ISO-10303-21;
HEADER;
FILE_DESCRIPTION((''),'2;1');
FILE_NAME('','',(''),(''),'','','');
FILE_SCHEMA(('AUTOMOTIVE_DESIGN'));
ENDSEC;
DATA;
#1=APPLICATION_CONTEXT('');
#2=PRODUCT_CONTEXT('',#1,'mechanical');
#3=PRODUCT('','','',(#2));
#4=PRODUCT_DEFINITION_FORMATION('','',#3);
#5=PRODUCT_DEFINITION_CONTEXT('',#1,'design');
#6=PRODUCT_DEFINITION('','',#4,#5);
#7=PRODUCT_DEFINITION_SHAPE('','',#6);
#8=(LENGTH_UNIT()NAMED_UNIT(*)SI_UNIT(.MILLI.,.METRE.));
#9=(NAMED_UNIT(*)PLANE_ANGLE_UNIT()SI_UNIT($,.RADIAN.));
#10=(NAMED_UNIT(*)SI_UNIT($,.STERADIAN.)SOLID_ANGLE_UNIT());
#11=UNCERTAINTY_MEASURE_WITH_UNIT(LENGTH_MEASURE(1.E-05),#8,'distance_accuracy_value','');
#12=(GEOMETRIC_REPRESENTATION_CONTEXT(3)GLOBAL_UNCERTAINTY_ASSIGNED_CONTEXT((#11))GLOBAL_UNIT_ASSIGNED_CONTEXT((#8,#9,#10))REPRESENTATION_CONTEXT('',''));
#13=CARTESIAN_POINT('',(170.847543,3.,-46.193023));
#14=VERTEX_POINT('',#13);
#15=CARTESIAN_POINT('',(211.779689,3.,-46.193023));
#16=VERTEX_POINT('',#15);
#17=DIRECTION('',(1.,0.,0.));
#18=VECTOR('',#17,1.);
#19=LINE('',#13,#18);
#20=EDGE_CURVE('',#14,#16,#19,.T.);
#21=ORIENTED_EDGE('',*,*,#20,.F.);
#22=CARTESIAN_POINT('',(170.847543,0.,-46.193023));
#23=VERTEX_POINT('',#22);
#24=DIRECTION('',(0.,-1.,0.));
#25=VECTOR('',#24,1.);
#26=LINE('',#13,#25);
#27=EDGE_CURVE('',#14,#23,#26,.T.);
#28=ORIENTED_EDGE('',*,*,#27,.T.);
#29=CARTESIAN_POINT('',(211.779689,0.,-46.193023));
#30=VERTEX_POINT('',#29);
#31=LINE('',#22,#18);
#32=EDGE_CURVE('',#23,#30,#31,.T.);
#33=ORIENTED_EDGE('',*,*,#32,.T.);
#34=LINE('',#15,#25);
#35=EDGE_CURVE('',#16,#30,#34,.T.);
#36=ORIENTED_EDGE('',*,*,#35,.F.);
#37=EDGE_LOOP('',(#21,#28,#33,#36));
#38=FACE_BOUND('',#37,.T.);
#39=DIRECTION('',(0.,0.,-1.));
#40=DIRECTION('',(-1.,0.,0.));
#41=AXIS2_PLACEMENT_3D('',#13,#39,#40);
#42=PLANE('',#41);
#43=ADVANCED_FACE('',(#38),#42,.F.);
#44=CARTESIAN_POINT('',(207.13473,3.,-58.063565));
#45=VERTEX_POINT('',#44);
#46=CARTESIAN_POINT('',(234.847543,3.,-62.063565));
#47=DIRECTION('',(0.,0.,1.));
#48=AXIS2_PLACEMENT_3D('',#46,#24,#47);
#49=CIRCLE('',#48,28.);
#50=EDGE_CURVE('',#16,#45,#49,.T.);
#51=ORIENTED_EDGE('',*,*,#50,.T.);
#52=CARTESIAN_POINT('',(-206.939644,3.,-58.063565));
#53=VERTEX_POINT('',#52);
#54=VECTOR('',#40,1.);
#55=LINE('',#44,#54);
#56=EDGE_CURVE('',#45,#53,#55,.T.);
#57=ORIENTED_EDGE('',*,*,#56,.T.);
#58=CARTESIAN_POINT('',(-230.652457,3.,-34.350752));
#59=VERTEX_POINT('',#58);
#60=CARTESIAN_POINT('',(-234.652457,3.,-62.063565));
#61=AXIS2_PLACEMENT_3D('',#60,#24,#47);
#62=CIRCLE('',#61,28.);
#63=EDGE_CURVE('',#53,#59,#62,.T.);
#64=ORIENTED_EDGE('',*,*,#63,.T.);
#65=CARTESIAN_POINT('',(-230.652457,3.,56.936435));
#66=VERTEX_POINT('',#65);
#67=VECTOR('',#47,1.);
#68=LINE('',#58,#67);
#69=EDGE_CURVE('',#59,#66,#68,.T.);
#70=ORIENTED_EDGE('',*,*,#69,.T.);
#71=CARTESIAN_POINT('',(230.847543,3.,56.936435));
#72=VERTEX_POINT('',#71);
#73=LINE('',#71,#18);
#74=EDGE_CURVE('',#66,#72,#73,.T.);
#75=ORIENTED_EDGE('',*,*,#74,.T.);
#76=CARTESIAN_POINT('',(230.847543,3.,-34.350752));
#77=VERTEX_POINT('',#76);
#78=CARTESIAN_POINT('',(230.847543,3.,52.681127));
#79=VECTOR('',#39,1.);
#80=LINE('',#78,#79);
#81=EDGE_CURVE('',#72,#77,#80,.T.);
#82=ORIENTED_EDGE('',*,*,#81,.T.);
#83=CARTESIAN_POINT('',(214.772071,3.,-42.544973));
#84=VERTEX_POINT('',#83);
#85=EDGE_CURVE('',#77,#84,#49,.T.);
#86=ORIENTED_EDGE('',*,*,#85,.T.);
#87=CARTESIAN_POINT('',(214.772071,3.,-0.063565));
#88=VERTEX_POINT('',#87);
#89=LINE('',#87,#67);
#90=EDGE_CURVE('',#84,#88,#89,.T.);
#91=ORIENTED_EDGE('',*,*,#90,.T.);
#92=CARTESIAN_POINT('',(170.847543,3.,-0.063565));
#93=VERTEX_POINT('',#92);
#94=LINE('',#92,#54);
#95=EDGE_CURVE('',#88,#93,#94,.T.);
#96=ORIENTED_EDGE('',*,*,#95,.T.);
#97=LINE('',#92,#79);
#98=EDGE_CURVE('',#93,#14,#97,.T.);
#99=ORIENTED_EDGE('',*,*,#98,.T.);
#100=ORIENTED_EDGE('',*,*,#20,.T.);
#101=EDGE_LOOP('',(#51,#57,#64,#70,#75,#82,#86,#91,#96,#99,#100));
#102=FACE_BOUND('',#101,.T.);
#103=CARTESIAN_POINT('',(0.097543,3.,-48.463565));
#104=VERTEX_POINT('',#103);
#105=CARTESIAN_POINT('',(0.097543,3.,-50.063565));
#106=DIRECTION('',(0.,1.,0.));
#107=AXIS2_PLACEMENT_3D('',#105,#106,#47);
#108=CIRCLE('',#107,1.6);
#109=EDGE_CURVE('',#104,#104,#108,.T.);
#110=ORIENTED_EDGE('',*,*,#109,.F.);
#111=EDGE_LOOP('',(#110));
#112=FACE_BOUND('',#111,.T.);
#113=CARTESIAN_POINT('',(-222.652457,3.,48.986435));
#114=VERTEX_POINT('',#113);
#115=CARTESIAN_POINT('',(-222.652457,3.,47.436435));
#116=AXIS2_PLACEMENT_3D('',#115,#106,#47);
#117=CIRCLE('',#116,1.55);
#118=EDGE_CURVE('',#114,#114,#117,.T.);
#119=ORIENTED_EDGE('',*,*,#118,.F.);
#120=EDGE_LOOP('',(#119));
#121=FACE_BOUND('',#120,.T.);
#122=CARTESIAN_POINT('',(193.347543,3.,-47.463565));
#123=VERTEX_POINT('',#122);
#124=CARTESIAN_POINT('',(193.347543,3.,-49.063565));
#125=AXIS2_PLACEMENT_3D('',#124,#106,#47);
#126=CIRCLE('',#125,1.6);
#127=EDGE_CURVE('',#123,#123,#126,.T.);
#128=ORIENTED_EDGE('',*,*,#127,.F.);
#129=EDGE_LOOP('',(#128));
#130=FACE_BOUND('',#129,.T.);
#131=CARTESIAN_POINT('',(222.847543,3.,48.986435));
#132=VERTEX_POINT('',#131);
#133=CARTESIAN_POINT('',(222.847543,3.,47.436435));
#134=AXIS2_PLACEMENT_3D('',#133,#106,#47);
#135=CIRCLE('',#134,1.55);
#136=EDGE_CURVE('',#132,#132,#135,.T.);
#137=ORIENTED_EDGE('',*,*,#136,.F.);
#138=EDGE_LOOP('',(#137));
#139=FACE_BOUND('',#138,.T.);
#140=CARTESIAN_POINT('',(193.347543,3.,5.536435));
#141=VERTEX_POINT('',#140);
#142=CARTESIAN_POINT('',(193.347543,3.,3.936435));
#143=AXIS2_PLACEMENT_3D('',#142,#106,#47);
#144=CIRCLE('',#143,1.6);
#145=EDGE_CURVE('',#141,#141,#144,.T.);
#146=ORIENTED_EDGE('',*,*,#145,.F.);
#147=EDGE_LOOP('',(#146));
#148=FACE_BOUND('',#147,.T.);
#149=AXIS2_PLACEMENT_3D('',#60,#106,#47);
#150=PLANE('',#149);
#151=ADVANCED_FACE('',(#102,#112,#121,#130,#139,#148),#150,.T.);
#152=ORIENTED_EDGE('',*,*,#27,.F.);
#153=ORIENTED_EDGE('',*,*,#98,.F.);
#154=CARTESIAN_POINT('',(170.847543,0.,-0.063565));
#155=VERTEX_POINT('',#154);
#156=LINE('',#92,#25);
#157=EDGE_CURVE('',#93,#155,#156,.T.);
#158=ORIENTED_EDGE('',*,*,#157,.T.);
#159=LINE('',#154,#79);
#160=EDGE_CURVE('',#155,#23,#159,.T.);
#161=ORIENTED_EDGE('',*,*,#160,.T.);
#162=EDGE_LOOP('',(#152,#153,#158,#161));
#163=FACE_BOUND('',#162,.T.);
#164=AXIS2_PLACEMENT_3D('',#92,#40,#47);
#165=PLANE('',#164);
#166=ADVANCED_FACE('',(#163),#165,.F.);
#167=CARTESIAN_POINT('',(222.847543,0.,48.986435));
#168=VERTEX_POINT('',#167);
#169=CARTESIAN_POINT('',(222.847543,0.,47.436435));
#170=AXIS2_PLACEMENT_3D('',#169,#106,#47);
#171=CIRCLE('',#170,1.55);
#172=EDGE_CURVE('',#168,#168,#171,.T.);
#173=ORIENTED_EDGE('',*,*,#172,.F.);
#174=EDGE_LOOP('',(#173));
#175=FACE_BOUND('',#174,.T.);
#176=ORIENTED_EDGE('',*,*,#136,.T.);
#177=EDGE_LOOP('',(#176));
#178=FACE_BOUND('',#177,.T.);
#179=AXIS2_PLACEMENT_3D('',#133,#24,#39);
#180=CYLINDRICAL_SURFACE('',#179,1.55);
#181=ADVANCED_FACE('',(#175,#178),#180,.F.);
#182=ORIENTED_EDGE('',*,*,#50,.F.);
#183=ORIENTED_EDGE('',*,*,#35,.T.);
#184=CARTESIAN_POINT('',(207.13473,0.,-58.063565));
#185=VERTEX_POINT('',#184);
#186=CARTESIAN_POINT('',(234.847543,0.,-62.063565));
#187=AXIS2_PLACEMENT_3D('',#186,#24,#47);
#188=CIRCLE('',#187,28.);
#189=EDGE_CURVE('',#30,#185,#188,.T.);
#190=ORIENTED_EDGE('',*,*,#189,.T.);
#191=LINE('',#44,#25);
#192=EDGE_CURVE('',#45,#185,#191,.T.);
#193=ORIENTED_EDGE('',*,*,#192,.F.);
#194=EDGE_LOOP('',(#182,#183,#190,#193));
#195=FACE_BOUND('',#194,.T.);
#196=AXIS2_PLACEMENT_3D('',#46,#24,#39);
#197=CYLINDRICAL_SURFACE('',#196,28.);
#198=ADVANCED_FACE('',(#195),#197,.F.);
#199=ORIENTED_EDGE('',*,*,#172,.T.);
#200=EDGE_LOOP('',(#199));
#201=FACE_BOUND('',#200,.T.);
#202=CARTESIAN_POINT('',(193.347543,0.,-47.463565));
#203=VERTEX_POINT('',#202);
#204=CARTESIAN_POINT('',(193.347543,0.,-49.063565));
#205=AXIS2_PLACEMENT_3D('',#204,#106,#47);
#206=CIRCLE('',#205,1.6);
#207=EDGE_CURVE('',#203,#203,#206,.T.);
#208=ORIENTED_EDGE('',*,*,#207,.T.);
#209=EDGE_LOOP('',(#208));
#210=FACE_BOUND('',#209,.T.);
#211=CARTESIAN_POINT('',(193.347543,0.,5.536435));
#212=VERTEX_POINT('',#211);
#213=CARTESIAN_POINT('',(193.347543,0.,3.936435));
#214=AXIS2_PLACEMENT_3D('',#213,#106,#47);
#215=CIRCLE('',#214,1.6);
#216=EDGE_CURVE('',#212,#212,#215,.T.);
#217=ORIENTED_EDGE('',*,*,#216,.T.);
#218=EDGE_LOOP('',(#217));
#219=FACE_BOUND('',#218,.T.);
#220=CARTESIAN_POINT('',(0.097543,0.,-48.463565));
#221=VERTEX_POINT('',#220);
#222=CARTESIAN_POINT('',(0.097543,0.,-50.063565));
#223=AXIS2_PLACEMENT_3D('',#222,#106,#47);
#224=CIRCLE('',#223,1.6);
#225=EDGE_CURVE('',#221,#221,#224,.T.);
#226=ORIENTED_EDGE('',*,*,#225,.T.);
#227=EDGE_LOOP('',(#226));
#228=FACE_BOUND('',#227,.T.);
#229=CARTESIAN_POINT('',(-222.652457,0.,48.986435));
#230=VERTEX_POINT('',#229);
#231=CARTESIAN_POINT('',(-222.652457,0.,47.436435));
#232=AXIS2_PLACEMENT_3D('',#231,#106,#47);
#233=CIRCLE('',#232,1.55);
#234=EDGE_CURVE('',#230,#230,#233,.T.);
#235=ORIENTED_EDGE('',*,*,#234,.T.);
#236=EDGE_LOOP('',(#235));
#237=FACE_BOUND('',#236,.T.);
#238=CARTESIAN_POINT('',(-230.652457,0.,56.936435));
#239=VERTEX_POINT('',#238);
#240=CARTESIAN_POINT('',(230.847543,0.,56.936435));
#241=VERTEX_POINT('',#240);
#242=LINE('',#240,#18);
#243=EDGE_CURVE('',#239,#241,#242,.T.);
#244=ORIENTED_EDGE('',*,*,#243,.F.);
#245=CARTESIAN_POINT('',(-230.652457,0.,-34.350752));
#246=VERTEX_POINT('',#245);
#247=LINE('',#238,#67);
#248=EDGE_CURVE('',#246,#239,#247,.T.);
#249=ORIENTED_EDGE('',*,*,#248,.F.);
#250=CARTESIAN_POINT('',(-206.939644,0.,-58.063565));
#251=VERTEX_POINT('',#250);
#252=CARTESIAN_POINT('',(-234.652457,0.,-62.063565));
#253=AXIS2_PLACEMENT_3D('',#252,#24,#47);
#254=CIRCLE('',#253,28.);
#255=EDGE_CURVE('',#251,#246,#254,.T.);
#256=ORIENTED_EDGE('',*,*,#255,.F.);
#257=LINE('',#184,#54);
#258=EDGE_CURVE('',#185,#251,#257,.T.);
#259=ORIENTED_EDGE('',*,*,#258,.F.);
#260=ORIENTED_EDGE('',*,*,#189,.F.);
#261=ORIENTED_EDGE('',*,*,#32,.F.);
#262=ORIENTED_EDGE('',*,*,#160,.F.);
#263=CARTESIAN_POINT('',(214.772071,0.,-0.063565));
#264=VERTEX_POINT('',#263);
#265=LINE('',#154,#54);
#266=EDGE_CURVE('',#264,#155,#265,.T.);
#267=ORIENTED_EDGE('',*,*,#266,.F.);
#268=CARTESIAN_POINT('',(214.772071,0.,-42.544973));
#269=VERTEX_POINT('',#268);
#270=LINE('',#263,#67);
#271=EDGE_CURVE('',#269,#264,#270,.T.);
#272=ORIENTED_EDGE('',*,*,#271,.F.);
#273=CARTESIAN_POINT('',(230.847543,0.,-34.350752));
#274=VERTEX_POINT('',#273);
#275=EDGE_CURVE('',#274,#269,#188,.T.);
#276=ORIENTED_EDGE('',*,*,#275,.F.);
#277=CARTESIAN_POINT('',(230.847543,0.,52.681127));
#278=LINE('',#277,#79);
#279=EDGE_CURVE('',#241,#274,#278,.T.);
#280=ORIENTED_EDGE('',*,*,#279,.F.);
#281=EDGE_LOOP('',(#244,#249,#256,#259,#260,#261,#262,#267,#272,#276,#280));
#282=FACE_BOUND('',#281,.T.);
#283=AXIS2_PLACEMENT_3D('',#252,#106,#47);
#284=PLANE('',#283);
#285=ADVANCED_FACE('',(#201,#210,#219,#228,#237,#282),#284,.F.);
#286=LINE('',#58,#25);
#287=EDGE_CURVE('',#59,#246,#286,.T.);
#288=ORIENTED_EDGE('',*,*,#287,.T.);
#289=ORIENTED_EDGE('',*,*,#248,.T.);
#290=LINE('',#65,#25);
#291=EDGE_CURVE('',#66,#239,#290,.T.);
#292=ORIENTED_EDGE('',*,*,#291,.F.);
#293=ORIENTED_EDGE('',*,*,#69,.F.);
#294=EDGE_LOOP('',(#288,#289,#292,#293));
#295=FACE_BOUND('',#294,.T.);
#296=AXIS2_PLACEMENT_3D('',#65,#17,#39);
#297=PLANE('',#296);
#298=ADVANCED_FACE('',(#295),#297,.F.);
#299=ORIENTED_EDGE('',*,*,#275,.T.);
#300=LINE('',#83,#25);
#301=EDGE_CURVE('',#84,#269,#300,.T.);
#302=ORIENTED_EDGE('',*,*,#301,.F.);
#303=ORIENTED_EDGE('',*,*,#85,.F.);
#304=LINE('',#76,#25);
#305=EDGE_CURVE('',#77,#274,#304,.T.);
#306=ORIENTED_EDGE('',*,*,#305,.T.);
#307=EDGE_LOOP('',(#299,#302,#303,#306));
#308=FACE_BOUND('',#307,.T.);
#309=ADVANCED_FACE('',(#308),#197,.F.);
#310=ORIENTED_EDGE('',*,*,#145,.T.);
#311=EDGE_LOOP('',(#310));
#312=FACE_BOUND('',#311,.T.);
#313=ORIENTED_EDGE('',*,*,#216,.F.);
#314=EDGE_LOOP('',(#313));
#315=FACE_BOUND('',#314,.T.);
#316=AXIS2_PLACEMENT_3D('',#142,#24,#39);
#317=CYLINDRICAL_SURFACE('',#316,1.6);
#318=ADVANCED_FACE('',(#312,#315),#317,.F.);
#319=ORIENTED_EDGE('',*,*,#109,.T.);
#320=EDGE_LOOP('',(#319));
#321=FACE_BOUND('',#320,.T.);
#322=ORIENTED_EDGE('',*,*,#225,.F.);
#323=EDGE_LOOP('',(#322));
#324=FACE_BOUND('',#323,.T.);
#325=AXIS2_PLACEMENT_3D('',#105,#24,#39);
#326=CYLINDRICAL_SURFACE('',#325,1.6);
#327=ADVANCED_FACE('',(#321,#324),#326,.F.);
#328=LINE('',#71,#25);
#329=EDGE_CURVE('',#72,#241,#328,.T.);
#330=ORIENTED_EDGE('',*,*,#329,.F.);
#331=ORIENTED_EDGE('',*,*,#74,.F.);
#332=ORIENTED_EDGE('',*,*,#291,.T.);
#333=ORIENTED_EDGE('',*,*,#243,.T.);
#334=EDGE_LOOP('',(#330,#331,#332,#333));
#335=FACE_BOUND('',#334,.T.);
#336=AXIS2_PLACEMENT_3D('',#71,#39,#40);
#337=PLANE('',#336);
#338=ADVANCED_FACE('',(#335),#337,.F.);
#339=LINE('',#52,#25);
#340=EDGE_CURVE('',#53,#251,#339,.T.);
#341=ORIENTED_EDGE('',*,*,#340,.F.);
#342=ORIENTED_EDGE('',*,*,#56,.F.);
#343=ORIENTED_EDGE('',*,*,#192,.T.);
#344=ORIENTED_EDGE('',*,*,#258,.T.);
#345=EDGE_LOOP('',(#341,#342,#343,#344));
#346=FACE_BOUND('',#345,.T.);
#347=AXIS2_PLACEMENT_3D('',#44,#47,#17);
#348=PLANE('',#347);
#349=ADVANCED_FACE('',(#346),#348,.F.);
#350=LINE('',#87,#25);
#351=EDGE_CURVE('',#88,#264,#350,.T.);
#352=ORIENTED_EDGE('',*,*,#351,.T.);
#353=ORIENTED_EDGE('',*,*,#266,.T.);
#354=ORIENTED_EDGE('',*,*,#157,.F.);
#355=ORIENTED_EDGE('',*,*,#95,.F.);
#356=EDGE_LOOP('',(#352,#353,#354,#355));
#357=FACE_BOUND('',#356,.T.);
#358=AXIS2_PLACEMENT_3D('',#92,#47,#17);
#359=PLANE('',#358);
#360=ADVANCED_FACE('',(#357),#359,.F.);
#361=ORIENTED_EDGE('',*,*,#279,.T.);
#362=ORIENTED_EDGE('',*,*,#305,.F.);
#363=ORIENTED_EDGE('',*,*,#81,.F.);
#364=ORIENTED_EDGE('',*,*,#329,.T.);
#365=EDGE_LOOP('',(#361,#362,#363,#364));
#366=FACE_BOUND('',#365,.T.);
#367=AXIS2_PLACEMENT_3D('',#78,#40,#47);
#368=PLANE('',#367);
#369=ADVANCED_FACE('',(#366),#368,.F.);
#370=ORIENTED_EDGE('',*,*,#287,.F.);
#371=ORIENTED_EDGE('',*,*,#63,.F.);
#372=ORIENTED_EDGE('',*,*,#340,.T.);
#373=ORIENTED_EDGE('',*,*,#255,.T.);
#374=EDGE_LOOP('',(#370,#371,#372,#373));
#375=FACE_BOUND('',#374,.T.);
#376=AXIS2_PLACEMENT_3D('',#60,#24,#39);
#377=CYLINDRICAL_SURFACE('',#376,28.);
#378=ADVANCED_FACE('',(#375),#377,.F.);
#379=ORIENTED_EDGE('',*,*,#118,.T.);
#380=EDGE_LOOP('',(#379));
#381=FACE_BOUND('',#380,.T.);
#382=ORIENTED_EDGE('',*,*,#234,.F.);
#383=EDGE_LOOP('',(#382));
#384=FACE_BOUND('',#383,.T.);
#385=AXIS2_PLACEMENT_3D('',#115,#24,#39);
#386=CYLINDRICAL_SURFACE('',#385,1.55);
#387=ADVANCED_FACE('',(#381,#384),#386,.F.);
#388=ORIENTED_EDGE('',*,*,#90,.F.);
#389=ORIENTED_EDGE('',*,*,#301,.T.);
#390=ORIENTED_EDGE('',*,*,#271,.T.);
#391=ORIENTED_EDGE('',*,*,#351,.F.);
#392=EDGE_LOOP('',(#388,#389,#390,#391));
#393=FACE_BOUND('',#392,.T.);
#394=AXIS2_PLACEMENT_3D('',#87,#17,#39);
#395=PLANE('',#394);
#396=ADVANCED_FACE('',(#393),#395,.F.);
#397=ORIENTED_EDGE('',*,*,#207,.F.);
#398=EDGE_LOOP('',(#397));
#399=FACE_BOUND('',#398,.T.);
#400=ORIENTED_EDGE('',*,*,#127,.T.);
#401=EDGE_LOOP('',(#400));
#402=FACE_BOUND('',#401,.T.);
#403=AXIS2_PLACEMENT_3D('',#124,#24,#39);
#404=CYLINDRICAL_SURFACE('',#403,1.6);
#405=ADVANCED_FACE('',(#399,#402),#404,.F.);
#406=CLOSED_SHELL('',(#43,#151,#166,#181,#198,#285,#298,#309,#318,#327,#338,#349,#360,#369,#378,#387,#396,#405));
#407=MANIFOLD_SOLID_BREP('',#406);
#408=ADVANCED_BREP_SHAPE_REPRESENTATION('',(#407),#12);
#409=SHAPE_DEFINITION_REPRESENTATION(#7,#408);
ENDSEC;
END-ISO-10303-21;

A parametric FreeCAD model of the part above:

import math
import FreeCAD as App
import Part
import Sketcher

doc = App.newDocument("Part")
body = doc.addObject("PartDesign::Body", "Body")

# Sketch on XZ plane
sketch1 = doc.addObject("Sketcher::SketchObject", "Sketch")
body.addObject(sketch1)
sketch1.AttachmentSupport = (doc.XZ_Plane, [""])
sketch1.MapMode = "FlatFace"
sketch1.addGeometry([
    Part.ArcOfCircle(Part.Circle(App.Vector(234.8, -62.1, 0), App.Vector(0, 0, 1), 28), math.radians(98), math.radians(136)),  # 0
    Part.LineSegment(App.Vector(214.8, -42.5, 0), App.Vector(214.8, -0.1, 0)),  # 1
    Part.LineSegment(App.Vector(214.8, -0.1, 0), App.Vector(170.8, -0.1, 0)),  # 2
    Part.LineSegment(App.Vector(170.8, -0.1, 0), App.Vector(170.8, -46.2, 0)),  # 3
    Part.LineSegment(App.Vector(170.8, -46.2, 0), App.Vector(211.8, -46.2, 0)),  # 4
    Part.ArcOfCircle(Part.Circle(App.Vector(234.8, -62.1, 0), App.Vector(0, 0, 1), 28), math.radians(145), math.radians(172)),  # 5
    Part.LineSegment(App.Vector(207.1, -58.1, 0), App.Vector(-206.9, -58.1, 0)),  # 6
    Part.ArcOfCircle(Part.Circle(App.Vector(-234.7, -62.1, 0), App.Vector(0, 0, 1), 28), math.radians(8), math.radians(82)),  # 7
    Part.LineSegment(App.Vector(-230.7, -34.4, 0), App.Vector(-230.7, 56.9, 0)),  # 8
    Part.LineSegment(App.Vector(-230.7, 56.9, 0), App.Vector(230.8, 56.9, 0)),  # 9
    Part.LineSegment(App.Vector(230.8, 56.9, 0), App.Vector(230.8, -34.4, 0)),  # 10
    Part.Circle(App.Vector(-222.7, 47.4, 0), App.Vector(0, 0, 1), 1.6),  # 11
    Part.Circle(App.Vector(222.8, 47.4, 0), App.Vector(0, 0, 1), 1.6),  # 12
    Part.Circle(App.Vector(193.3, 3.9, 0), App.Vector(0, 0, 1), 1.6),  # 13
    Part.Circle(App.Vector(0.1, -50.1, 0), App.Vector(0, 0, 1), 1.6),  # 14
    Part.Circle(App.Vector(193.3, -49.1, 0), App.Vector(0, 0, 1), 1.6),  # 15
], False)
sketch1.addConstraint([
    Sketcher.Constraint("Coincident", 0, 2, 1, 1),
    Sketcher.Constraint("Coincident", 1, 2, 2, 1),
    Sketcher.Constraint("Coincident", 2, 2, 3, 1),
    Sketcher.Constraint("Coincident", 3, 2, 4, 1),
    Sketcher.Constraint("Coincident", 4, 2, 5, 1),
    Sketcher.Constraint("Coincident", 5, 2, 6, 1),
    Sketcher.Constraint("Coincident", 6, 2, 7, 1),
    Sketcher.Constraint("Coincident", 7, 2, 8, 1),
    Sketcher.Constraint("Coincident", 8, 2, 9, 1),
    Sketcher.Constraint("Coincident", 9, 2, 10, 1),
    Sketcher.Constraint("Coincident", 10, 2, 0, 1),
    Sketcher.Constraint("Vertical", 1),
    Sketcher.Constraint("Horizontal", 2),
    Sketcher.Constraint("Vertical", 3),
    Sketcher.Constraint("Horizontal", 4),
    Sketcher.Constraint("Horizontal", 6),
    Sketcher.Constraint("Vertical", 8),
    Sketcher.Constraint("Horizontal", 9),
    Sketcher.Constraint("Vertical", 10),
    Sketcher.Constraint("Coincident", 5, 3, 0, 3),
    Sketcher.Constraint("Equal", 0, 5),
    Sketcher.Constraint("Equal", 5, 7),
    Sketcher.Constraint("Equal", 11, 12),
    Sketcher.Constraint("Equal", 13, 14),
    Sketcher.Constraint("Equal", 14, 15),
    Sketcher.Constraint("Horizontal", 5, 3, 7, 3),
    Sketcher.Constraint("Horizontal", 11, 3, 12, 3),
    Sketcher.Constraint("Horizontal", 7, 2, 10, 2),
    Sketcher.Constraint("Vertical", 13, 3, 15, 3),
    Sketcher.Constraint("Radius", 0, 28.0),
    Sketcher.Constraint("Diameter", 11, 3.1),
    Sketcher.Constraint("Diameter", 13, 3.2),
    Sketcher.Constraint("DistanceX", 9, 1, 9, 2, 461.5),
    Sketcher.Constraint("DistanceX", 7, 3, 11, 3, 12.0),
    Sketcher.Constraint("DistanceX", 12, 3, 0, 3, 12.0),
    Sketcher.Constraint("DistanceY", 0, 3, 13, 3, 66.0),
    Sketcher.Constraint("DistanceX", 11, 3, 13, 3, 416.0),
    Sketcher.Constraint("DistanceY", 14, 3, 13, 3, 54.0),
    Sketcher.Constraint("DistanceY", 0, 3, 15, 3, 13.0),
    Sketcher.Constraint("DistanceY", 1, 2, 13, 3, 4.0),
    Sketcher.Constraint("DistanceX", 2, 2, 12, 3, 52.0),
    Sketcher.Constraint("DistanceY", 5, 2, 15, 3, 9.0),
    Sketcher.Constraint("DistanceX", 7, 3, 7, 2, 4.0),
    Sketcher.Constraint("DistanceY", 6, 2, 8, 2, 115.0),
    Sketcher.Constraint("DistanceY", 7, 3, 11, 3, 109.5),
    Sketcher.Constraint("DistanceX", 14, 3, 13, 3, 193.25),
    Sketcher.Constraint("DistanceX", 2, 2, 2, 1, 43.924528),
    Sketcher.Constraint("DistanceY", 3, 2, 3, 1, 46.129458),
    Sketcher.Constraint("DistanceX", -1, 1, 0, 2, 214.772072),
    Sketcher.Constraint("DistanceY", 7, 2, -1, 1, 34.350752),
])
pad1 = doc.addObject("PartDesign::Pad", "Pad")
body.addObject(pad1)
pad1.Profile = sketch1
pad1.Length = 3
pad1.Reversed = True

doc.recompute()
